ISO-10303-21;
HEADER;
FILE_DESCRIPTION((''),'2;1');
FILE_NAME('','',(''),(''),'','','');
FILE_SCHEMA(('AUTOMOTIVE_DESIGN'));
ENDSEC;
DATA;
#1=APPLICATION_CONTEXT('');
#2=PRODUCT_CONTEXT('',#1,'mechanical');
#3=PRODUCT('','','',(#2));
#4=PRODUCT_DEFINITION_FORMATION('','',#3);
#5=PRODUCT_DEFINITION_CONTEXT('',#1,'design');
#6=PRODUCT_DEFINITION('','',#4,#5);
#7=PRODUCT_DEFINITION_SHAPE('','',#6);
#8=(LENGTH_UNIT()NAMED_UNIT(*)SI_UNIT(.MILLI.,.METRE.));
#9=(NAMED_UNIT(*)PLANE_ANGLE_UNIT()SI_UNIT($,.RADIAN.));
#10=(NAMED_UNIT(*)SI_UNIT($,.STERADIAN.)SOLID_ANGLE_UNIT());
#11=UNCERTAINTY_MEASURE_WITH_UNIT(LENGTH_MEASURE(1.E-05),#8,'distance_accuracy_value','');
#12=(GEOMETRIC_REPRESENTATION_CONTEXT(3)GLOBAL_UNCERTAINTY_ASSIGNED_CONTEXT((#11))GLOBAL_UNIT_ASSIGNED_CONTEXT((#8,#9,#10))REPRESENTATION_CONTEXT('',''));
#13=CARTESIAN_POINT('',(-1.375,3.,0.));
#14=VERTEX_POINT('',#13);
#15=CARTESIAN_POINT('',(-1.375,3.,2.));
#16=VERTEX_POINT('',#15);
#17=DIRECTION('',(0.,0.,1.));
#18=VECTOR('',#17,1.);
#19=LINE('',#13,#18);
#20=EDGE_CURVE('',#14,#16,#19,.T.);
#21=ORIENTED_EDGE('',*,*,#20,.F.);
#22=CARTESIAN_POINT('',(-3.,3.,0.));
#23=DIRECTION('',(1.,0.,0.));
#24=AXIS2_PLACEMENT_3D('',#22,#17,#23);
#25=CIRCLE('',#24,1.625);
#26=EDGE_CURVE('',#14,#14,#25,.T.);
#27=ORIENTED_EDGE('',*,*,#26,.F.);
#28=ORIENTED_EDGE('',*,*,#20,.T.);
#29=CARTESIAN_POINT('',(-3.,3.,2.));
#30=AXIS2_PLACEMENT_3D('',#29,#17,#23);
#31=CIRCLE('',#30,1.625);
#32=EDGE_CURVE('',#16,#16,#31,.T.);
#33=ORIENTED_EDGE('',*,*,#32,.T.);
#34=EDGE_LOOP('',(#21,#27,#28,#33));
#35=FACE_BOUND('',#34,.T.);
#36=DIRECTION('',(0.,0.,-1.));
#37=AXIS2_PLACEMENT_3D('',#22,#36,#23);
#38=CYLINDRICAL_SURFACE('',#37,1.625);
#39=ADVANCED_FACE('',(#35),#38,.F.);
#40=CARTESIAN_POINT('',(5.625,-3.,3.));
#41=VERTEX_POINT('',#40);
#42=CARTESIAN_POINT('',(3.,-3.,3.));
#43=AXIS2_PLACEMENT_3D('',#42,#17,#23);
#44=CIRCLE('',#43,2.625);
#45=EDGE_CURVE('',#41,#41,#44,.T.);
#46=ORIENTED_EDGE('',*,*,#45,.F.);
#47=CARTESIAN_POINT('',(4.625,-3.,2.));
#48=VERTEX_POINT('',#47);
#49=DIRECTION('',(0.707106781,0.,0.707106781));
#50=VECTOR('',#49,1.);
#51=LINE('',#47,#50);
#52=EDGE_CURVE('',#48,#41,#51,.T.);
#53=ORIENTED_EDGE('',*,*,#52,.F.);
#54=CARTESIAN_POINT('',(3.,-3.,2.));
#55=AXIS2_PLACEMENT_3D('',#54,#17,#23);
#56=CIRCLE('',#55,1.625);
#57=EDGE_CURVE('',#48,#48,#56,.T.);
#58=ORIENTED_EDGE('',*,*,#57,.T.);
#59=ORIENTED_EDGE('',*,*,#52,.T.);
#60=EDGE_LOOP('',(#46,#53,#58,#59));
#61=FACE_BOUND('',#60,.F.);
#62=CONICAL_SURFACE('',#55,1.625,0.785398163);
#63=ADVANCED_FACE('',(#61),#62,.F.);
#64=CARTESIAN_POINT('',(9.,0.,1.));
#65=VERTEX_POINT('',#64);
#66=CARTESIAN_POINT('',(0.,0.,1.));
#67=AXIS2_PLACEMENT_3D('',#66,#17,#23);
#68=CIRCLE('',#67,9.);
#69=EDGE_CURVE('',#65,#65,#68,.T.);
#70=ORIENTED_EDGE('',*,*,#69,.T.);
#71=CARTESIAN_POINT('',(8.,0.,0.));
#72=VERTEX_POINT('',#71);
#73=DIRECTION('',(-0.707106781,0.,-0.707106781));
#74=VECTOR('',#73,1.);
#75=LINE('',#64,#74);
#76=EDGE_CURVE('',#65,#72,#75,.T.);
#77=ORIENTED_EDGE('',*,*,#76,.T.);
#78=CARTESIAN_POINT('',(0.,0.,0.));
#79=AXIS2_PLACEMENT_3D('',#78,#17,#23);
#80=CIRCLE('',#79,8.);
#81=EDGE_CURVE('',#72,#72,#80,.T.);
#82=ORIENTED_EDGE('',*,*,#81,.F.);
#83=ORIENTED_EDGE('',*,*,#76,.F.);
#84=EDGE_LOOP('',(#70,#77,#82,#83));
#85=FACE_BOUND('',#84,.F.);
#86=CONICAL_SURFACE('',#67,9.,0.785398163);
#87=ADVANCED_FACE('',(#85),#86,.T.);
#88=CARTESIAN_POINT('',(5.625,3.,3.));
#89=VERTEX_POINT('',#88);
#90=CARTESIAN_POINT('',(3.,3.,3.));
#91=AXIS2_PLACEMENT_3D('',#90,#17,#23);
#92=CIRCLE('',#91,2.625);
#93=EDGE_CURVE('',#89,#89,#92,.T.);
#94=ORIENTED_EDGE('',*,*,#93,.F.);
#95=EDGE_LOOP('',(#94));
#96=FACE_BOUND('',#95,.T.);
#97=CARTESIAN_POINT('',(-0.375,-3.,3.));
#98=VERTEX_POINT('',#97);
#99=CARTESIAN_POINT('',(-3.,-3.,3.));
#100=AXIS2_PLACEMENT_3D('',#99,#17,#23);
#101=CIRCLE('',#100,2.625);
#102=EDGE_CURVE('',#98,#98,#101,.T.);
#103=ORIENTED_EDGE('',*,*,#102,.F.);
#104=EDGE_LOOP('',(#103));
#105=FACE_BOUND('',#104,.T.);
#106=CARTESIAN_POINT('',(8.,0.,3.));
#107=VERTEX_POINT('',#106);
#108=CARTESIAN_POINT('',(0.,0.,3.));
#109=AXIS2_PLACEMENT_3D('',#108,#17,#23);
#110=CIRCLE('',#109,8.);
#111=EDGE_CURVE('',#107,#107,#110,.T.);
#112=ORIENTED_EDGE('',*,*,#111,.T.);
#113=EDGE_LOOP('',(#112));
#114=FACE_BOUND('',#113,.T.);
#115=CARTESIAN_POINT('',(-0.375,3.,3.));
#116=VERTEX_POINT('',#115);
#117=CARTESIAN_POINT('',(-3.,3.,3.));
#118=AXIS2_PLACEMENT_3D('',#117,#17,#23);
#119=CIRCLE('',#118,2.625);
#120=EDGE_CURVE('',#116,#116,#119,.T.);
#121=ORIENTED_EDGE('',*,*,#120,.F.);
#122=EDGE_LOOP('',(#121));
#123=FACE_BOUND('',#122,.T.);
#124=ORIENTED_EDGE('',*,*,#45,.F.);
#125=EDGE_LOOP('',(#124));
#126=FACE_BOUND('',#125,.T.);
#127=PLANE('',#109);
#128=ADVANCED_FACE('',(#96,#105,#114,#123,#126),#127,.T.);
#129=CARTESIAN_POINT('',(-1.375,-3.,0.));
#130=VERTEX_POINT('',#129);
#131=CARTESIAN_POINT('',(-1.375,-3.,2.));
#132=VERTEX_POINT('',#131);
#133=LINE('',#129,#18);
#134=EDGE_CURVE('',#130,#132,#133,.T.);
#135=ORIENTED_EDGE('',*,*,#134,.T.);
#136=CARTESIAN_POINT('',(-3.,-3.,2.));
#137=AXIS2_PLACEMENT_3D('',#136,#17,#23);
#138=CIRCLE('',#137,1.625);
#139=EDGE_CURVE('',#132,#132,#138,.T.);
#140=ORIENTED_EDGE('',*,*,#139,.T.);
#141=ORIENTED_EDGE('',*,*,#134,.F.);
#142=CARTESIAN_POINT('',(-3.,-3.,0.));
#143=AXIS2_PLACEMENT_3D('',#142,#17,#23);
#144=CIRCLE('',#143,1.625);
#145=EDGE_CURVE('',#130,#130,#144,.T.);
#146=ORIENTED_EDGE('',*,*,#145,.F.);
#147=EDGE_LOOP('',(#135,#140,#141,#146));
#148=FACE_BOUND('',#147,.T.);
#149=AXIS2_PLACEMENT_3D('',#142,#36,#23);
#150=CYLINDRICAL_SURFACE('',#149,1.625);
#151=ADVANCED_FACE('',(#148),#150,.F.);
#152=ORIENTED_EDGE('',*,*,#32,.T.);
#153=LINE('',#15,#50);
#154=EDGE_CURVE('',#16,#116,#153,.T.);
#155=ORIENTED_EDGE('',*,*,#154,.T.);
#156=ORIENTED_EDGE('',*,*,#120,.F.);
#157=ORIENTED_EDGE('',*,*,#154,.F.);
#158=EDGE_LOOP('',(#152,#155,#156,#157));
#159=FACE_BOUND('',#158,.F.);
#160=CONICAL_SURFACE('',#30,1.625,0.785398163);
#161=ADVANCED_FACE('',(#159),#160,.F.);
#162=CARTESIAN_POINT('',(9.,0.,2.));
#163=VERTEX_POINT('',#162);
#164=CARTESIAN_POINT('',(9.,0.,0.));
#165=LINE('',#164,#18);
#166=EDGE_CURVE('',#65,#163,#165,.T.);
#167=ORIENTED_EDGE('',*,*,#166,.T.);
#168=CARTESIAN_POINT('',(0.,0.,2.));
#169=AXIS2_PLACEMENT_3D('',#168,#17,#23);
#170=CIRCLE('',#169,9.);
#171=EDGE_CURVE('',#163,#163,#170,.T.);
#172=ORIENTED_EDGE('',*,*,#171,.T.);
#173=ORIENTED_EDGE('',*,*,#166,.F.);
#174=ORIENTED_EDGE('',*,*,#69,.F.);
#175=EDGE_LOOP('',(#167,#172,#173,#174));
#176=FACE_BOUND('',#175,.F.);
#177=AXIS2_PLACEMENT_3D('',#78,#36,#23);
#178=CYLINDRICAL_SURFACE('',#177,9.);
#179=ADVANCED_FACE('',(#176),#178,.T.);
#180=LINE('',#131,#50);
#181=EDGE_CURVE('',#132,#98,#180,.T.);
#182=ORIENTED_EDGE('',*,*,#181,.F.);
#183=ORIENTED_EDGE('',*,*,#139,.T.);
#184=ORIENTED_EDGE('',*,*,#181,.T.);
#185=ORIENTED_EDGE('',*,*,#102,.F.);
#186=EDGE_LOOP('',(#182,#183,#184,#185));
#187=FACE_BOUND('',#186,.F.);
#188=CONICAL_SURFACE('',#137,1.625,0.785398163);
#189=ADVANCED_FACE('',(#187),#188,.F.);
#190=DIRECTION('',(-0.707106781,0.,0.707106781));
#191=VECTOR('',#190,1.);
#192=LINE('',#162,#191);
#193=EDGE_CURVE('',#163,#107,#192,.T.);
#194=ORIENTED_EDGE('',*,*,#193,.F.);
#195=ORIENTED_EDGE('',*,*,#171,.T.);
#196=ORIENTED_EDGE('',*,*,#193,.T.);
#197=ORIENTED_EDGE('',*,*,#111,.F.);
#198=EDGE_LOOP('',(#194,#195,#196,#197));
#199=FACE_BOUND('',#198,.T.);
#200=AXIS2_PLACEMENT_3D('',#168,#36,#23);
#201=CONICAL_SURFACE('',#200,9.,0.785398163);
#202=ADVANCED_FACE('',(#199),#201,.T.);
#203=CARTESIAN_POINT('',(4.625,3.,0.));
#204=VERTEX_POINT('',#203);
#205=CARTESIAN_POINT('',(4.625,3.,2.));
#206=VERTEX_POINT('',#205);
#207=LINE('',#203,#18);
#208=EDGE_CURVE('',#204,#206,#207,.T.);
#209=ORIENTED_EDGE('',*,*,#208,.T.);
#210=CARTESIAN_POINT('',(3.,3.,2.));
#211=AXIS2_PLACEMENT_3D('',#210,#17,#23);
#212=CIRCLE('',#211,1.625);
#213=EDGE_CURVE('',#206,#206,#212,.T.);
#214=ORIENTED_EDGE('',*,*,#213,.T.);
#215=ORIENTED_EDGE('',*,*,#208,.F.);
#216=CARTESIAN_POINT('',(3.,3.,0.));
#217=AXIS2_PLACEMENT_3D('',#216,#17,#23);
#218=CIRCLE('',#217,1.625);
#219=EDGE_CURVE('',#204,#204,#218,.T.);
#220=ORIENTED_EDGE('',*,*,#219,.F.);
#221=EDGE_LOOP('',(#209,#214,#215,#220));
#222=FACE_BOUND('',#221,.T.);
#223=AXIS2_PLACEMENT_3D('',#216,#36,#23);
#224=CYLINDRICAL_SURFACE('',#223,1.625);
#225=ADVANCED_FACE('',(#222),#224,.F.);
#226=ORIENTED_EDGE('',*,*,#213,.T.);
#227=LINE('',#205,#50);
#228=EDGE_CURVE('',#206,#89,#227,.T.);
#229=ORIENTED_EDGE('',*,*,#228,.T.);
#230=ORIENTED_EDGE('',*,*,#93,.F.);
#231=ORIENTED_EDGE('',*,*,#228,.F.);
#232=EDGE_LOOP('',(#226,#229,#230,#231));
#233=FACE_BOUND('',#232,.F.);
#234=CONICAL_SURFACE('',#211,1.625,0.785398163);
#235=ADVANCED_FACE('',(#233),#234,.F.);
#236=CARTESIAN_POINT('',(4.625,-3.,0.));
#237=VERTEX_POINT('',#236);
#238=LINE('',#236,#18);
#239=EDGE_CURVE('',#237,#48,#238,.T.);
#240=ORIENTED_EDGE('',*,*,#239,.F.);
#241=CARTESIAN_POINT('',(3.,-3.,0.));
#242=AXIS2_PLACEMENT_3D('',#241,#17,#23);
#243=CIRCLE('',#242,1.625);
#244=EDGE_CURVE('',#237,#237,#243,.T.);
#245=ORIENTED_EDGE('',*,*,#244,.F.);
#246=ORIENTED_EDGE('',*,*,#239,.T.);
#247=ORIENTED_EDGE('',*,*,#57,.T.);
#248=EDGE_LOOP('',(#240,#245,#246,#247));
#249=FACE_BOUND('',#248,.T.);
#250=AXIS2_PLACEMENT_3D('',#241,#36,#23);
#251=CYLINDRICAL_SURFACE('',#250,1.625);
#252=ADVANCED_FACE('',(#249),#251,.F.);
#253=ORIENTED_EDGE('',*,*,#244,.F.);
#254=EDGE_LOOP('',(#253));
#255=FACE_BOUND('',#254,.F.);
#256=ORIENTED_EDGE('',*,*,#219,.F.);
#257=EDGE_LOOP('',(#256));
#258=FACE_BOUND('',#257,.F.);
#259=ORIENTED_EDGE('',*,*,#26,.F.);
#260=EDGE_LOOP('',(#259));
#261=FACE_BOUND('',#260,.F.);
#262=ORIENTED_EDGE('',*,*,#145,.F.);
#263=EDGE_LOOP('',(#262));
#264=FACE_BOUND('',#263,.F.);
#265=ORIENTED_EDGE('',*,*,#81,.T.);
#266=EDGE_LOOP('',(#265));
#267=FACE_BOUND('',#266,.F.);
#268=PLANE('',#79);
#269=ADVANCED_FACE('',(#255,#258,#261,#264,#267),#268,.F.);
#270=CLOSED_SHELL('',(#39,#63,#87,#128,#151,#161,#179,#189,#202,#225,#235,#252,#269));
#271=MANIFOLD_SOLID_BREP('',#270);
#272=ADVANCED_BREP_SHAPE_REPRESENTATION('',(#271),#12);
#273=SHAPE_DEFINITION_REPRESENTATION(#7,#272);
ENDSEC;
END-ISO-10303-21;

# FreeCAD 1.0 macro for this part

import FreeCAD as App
import Part
import Sketcher
from FreeCAD import Vector
Q = App.Units.Quantity


def edges_at(feature, points):
    """Names of the edges that pass closest to the given points."""
    edges = feature.Shape.Edges
    near = lambda p: min(range(len(edges)), key=lambda i: edges[i].distToShape(Part.Vertex(*p))[0])
    return sorted({f"Edge{near(p) + 1}" for p in points})

doc = App.newDocument("Part")
body = doc.addObject("PartDesign::Body", "Body")

sketch1 = doc.addObject("Sketcher::SketchObject", "Sketch")
body.addObject(sketch1)
sketch1.AttachmentSupport = (doc.XY_Plane, [""])
sketch1.MapMode = "FlatFace"
sketch1.addGeometry(Part.Circle(Vector(0, 0, 0), Vector(0, 0, 1), 9), False)
sketch1.addGeometry(Part.Circle(Vector(-3, -3, 0), Vector(0, 0, 1), 1.6), False)
sketch1.addGeometry(Part.Circle(Vector(3, -3, 0), Vector(0, 0, 1), 1.6), False)
sketch1.addGeometry(Part.Circle(Vector(-3, 3, 0), Vector(0, 0, 1), 1.6), False)
sketch1.addGeometry(Part.Circle(Vector(3, 3, 0), Vector(0, 0, 1), 1.6), False)
sketch1.addConstraint(Sketcher.Constraint("Coincident", 0, 3, -1, 1))
sketch1.addConstraint(Sketcher.Constraint("Equal", 1, 2))
sketch1.addConstraint(Sketcher.Constraint("Equal", 2, 3))
sketch1.addConstraint(Sketcher.Constraint("Equal", 3, 4))
sketch1.addConstraint(Sketcher.Constraint("Symmetric", 2, 3, 3, 3, -1, 1))
sketch1.addConstraint(Sketcher.Constraint("Symmetric", 1, 3, 4, 3, -1, 1))
sketch1.addConstraint(Sketcher.Constraint("Symmetric", 1, 3, 2, 3, -2))
sketch1.addConstraint(Sketcher.Constraint("Diameter", 0, Q("18 mm")))
sketch1.addConstraint(Sketcher.Constraint("Diameter", 1, Q("3.25 mm")))
sketch1.addConstraint(Sketcher.Constraint("DistanceX", 1, 3, -1, 1, Q("3 mm")))
sketch1.addConstraint(Sketcher.Constraint("DistanceY", 1, 3, -1, 1, Q("3 mm")))
pad1 = doc.addObject("PartDesign::Pad", "Pad")
body.addObject(pad1)
pad1.Profile = sketch1
pad1.Length = 3
doc.recompute()

chamfer = doc.addObject("PartDesign::Chamfer", "Chamfer")
body.addObject(chamfer)
chamfer.Base = (pad1, edges_at(pad1, [
    (-9, 0, 3),
    (-4.625, -3, 3),
    (1.375, -3, 3),
    (-4.625, 3, 3),
    (1.375, 3, 3),
    (-9, 0, 0),
]))
chamfer.Size = 1

doc.recompute()
